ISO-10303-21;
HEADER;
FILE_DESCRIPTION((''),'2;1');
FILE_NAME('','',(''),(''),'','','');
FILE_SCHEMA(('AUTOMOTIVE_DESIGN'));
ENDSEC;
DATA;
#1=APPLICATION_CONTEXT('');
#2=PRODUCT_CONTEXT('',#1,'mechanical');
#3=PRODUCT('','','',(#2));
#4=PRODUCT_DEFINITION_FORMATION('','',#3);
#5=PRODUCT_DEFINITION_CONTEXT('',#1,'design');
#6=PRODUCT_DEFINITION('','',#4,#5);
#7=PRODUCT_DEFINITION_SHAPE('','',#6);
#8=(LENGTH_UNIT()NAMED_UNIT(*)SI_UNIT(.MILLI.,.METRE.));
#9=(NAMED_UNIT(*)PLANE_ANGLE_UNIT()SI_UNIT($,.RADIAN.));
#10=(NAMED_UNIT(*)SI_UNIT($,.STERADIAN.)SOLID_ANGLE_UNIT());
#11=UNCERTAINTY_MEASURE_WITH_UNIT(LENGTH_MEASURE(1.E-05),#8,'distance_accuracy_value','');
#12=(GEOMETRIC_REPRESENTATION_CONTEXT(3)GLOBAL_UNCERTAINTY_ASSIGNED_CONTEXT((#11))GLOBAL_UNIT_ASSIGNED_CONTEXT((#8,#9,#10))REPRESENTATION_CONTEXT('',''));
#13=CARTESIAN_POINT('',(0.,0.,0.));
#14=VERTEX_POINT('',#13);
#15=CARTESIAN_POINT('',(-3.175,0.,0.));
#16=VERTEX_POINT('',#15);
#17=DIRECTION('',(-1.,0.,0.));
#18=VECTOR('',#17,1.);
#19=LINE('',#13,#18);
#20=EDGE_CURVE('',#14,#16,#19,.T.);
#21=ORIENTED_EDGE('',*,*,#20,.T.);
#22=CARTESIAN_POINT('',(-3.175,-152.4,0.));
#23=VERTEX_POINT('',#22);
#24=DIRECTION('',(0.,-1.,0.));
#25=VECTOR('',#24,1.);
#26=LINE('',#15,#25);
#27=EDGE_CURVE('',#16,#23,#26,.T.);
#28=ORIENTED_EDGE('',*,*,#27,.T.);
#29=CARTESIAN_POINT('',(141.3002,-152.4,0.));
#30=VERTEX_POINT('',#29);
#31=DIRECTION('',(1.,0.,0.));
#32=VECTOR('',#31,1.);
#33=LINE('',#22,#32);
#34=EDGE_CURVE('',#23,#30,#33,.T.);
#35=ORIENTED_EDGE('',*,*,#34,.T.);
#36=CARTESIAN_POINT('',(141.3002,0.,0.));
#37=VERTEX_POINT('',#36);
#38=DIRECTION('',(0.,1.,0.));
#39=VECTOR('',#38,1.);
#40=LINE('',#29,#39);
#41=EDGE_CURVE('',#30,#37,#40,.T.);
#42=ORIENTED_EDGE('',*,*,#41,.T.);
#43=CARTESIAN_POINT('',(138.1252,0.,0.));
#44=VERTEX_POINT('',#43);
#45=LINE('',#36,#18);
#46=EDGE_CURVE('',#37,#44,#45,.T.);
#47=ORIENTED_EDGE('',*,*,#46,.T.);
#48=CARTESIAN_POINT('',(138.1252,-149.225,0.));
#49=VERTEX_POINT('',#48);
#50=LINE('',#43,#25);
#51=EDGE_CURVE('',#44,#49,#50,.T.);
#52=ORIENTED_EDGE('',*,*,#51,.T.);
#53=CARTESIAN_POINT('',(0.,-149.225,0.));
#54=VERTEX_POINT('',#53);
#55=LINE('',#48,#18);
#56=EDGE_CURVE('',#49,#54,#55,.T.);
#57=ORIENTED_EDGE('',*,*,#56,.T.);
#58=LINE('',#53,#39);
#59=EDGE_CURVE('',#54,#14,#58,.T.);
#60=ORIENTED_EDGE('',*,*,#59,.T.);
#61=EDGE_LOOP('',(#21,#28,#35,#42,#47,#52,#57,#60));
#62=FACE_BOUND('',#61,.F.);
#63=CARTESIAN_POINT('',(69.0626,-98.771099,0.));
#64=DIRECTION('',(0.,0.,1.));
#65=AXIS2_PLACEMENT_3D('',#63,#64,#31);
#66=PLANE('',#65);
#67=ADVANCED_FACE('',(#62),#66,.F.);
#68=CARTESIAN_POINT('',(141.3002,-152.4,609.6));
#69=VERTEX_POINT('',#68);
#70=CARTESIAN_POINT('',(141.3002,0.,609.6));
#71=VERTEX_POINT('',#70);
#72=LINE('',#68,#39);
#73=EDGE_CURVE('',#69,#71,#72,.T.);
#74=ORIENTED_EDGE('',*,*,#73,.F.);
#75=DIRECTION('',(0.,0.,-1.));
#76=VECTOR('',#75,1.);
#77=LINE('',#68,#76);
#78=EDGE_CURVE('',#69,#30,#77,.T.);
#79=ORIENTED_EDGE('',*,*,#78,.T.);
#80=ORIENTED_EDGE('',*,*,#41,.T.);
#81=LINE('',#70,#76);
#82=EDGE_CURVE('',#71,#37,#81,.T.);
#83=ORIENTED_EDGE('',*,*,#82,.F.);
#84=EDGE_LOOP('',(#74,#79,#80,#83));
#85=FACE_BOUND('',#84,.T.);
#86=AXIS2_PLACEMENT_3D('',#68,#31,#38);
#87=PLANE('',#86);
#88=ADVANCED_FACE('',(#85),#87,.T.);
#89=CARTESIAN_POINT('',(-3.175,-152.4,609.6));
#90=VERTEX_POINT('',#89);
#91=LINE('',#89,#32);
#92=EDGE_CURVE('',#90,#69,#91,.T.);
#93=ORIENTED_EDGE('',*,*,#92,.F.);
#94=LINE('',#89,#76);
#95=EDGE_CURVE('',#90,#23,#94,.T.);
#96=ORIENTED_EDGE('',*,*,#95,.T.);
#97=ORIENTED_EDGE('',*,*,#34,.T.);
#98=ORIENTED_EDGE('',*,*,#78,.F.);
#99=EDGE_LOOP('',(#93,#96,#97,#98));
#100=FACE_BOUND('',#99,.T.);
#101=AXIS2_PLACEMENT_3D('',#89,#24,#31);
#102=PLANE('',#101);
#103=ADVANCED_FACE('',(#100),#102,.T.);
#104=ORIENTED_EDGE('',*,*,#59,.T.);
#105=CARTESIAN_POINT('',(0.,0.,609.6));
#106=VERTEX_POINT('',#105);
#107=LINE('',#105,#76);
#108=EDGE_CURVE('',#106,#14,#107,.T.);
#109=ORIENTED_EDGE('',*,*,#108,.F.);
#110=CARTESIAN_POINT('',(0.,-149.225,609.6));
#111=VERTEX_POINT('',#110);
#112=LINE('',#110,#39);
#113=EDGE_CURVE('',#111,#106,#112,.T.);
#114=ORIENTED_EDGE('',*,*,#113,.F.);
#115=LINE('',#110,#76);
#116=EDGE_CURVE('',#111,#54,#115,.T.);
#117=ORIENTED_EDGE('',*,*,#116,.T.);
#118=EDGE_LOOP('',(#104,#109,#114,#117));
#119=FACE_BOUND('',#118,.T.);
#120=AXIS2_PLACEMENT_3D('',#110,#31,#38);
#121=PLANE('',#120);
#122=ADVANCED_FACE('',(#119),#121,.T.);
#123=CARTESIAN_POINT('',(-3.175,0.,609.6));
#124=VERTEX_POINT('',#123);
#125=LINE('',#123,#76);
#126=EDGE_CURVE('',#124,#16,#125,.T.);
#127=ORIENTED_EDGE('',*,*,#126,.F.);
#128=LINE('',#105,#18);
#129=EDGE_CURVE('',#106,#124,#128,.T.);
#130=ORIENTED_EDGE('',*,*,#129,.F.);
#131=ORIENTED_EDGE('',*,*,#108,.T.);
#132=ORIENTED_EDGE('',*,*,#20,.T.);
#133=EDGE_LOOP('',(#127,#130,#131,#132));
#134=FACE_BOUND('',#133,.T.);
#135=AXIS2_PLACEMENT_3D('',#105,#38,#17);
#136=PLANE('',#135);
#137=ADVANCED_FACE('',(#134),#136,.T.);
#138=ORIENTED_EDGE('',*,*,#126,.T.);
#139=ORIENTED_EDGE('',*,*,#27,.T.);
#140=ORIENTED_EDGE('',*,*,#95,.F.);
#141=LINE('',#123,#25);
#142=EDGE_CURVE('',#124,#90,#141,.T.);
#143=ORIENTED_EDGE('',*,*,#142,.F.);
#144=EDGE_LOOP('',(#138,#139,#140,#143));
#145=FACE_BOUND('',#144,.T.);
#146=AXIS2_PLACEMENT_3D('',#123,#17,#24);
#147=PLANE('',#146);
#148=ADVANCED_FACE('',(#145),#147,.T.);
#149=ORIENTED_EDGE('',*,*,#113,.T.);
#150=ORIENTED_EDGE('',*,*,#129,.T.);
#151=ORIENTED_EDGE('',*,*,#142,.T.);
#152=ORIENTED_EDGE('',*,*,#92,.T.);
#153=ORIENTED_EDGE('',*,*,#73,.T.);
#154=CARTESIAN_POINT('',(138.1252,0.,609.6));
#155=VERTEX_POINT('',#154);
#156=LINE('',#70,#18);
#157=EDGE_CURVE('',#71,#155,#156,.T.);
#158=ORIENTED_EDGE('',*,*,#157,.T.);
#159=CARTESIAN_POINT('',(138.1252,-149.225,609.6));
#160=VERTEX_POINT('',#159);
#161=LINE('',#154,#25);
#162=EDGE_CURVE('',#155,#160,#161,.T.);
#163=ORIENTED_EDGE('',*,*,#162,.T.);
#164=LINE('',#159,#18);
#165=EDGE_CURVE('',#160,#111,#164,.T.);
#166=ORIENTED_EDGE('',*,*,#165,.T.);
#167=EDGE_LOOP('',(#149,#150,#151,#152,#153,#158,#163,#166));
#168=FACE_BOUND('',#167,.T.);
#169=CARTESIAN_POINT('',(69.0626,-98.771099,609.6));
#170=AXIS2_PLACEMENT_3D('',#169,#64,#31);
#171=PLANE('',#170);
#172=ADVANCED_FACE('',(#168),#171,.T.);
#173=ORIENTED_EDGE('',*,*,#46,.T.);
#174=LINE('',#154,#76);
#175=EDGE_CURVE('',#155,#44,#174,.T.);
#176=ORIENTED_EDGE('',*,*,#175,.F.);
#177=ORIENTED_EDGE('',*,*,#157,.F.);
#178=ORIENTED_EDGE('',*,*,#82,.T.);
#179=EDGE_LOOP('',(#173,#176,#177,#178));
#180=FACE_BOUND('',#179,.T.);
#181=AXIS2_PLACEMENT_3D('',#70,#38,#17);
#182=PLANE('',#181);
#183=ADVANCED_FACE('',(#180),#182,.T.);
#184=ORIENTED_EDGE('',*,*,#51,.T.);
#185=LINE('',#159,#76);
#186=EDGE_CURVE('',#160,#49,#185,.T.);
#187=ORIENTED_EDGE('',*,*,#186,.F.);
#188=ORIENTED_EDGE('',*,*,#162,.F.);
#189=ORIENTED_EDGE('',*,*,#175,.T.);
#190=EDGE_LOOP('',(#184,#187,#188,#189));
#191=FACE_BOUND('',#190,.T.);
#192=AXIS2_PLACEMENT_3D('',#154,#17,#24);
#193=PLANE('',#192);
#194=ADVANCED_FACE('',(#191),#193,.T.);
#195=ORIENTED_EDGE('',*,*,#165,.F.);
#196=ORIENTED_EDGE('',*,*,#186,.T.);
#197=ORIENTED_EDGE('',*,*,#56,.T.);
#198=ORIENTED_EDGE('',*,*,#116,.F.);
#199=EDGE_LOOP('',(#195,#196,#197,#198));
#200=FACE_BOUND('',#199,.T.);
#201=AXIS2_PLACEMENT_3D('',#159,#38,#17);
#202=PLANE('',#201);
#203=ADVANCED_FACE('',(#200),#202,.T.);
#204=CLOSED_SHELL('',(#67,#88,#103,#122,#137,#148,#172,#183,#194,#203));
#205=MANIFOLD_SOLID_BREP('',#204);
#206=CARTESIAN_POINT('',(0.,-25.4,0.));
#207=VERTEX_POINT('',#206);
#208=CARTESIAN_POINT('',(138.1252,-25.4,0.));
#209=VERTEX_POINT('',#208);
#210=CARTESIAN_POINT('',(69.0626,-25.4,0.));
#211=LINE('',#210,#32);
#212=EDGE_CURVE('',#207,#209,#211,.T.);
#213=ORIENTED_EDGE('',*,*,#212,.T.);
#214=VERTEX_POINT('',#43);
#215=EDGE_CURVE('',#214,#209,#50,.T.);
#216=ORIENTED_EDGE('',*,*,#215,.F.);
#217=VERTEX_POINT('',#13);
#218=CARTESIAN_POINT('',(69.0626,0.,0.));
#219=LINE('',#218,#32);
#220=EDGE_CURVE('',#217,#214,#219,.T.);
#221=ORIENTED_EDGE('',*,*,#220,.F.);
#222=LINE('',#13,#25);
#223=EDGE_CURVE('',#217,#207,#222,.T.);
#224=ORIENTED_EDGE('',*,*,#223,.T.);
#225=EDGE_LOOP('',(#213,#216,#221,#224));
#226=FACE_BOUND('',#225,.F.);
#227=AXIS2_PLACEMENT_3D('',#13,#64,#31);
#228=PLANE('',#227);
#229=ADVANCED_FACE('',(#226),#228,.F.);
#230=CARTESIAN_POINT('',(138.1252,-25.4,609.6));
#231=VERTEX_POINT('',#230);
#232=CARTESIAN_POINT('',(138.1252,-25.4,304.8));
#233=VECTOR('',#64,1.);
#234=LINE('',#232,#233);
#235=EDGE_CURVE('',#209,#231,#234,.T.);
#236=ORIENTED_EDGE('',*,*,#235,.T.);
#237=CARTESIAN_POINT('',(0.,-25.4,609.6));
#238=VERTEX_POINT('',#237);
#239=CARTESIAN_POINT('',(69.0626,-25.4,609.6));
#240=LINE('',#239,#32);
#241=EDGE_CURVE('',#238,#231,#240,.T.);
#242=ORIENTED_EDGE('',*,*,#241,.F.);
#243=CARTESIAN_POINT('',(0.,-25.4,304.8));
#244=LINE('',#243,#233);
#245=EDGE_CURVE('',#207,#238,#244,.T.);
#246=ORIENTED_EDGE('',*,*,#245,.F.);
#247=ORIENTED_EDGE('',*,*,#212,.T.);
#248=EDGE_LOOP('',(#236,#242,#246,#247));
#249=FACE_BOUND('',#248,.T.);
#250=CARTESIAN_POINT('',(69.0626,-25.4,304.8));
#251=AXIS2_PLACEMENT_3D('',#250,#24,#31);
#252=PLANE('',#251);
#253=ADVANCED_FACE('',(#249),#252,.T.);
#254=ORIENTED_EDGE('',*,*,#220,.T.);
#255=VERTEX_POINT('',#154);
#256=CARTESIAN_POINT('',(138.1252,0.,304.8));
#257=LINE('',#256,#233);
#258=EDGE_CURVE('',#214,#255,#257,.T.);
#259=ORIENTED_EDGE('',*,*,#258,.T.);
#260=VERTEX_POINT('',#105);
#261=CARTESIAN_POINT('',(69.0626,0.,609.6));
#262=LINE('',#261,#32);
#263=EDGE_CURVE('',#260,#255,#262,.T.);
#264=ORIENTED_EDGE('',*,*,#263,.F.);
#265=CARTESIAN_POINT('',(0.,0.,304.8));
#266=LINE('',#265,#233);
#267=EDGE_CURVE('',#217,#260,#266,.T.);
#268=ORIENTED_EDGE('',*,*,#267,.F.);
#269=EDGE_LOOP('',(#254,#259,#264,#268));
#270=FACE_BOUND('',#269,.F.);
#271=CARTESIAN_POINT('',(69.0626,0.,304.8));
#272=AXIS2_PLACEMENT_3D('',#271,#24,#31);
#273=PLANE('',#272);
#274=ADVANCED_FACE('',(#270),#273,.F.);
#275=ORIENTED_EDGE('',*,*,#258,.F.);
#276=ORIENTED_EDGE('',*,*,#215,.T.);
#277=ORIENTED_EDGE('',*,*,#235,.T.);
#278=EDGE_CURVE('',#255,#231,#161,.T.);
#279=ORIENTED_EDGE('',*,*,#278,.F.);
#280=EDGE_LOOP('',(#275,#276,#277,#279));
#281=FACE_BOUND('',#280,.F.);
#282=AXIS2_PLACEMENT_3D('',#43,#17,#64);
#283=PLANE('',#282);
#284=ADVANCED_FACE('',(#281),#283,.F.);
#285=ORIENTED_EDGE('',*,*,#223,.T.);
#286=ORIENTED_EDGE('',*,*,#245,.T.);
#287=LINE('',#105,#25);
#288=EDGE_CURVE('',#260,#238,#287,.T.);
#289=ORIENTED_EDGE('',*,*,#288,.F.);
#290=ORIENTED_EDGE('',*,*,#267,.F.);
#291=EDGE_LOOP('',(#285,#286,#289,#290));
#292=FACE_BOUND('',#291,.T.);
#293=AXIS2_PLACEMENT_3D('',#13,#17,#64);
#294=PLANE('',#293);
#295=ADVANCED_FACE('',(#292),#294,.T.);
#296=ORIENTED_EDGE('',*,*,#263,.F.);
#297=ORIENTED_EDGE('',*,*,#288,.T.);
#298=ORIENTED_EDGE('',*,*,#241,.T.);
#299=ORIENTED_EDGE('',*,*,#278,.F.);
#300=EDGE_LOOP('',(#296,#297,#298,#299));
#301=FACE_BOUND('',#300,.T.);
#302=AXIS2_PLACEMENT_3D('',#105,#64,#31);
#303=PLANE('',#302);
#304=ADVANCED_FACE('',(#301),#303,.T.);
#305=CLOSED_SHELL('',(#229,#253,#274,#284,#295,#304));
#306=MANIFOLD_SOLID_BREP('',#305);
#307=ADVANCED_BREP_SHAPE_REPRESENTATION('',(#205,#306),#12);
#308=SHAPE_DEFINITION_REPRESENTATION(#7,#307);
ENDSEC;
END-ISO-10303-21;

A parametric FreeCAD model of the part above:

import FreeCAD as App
import Part
import Sketcher
Q = App.Units.Quantity


def add_polygon(sketch, points):
    """Adds a closed chain of lines whose ends are joined by coincident constraints."""
    first, n = sketch.GeometryCount, len(points)
    for a, b in zip(points, points[1:] + points[:1]):
        sketch.addGeometry(Part.LineSegment(App.Vector(*a, 0), App.Vector(*b, 0)), False)
    for i in range(n):
        sketch.addConstraint(Sketcher.Constraint("Coincident", first + i, 2, first + (i + 1) % n, 1))

doc = App.newDocument("Part")
body = doc.addObject("PartDesign::Body", "Body")

sketch1 = doc.addObject("Sketcher::SketchObject", "Sketch")
body.addObject(sketch1)
sketch1.AttachmentSupport = (doc.XZ_Plane, [""])
sketch1.MapMode = "FlatFace"
add_polygon(sketch1, [(0, 610), (0, 0), (138, 0), (138, 610)])
sketch1.addConstraint(Sketcher.Constraint("Vertical", 0))
sketch1.addConstraint(Sketcher.Constraint("Horizontal", 1))
sketch1.addConstraint(Sketcher.Constraint("Vertical", 2))
sketch1.addConstraint(Sketcher.Constraint("Horizontal", 3))
sketch1.addConstraint(Sketcher.Constraint("Coincident", 0, 2, -1, 1))
sketch1.addConstraint(Sketcher.Constraint("DistanceY", 0, 2, 0, 1, Q("24 in")))
sketch1.addConstraint(Sketcher.Constraint("DistanceX", 1, 1, 1, 2, Q("5.438 in")))
pad1 = doc.addObject("PartDesign::Pad", "Pad")
body.addObject(pad1)
pad1.Profile = sketch1
pad1.Length = Q("1 in")
body2 = doc.addObject("PartDesign::Body", "Body001")

sketch2 = doc.addObject("Sketcher::SketchObject", "Sketch001")
body2.addObject(sketch2)
sketch2.AttachmentSupport = (doc.getObject("XY_Plane001"), [""])
sketch2.MapMode = "FlatFace"
sketch2.AttachmentOffset = App.Placement(App.Vector(0, 0, 24 * 25.4), App.Rotation())
add_polygon(sketch2, [(0, -149.2), (0, 0), (-3.2, 0), (-3.2, -152.4), (141.3, -152.4), (141.3, 0), (138.1, 0), (138.1, -149.2)])
sketch2.addConstraint(Sketcher.Constraint("Vertical", 0))
sketch2.addConstraint(Sketcher.Constraint("Horizontal", 1))
sketch2.addConstraint(Sketcher.Constraint("Vertical", 2))
sketch2.addConstraint(Sketcher.Constraint("Horizontal", 3))
sketch2.addConstraint(Sketcher.Constraint("Vertical", 4))
sketch2.addConstraint(Sketcher.Constraint("Horizontal", 5))
sketch2.addConstraint(Sketcher.Constraint("Vertical", 6))
sketch2.addConstraint(Sketcher.Constraint("Horizontal", 7))
sketch2.addConstraint(Sketcher.Constraint("Coincident", 0, 2, -1, 1))
sketch2.addConstraint(Sketcher.Constraint("PointOnObject", 4, 2, -1))
sketch2.addConstraint(Sketcher.Constraint("Equal", 1, 5))
sketch2.addConstraint(Sketcher.Constraint("DistanceY", 2, 2, 2, 1, Q("6 in")))
sketch2.addConstraint(Sketcher.Constraint("DistanceX", 1, 2, 1, 1, Q("0.125 in")))
sketch2.addConstraint(Sketcher.Constraint("DistanceX", 3, 1, 3, 2, Q("5.688 in")))
sketch2.addConstraint(Sketcher.Constraint("DistanceY", 0, 1, 0, 2, Q("5.875 in")))
pad2 = doc.addObject("PartDesign::Pad", "Pad001")
body2.addObject(pad2)
pad2.Profile = sketch2
pad2.Length = Q("24 in")
pad2.Reversed = True

doc.recompute()
